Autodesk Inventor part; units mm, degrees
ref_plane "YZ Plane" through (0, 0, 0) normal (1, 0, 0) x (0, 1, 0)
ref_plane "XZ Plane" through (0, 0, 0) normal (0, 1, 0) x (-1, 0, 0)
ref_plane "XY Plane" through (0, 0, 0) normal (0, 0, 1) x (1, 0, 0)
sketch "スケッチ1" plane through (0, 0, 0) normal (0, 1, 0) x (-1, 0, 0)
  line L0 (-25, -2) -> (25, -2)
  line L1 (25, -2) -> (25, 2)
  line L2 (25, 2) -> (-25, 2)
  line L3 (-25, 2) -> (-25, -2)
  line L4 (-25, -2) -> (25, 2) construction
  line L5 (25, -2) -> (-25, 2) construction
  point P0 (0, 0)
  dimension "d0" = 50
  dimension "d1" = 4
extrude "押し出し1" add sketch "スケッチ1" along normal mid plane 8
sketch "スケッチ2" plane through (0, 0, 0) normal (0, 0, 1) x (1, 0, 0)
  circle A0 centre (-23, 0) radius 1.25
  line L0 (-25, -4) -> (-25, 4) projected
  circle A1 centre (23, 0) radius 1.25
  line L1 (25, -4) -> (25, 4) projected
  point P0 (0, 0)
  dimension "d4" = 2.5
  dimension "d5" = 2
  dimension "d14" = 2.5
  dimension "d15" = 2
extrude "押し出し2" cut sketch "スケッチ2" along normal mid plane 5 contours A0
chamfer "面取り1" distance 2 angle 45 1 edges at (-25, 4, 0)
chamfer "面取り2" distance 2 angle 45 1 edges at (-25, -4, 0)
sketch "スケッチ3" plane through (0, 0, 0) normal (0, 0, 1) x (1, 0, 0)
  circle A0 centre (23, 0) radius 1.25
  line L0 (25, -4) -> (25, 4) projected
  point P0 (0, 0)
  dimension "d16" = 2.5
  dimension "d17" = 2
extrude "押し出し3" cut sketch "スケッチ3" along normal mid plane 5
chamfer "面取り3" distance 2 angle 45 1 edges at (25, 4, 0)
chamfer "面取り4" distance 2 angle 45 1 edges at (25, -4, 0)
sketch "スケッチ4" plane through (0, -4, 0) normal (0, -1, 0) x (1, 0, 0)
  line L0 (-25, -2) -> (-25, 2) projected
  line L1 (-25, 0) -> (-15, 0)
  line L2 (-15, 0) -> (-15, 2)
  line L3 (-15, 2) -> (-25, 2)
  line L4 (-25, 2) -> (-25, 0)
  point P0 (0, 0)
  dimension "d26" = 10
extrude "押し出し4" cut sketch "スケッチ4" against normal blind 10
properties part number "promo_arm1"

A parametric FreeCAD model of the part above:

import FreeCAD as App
import Part
import Sketcher
Q = App.Units.Quantity


def edges_at(feature, points):
    """Names of the edges that pass closest to the given points."""
    edges = feature.Shape.Edges
    near = lambda p: min(range(len(edges)), key=lambda i: edges[i].distToShape(Part.Vertex(*p))[0])
    return sorted({f"Edge{near(p) + 1}" for p in points})


def add_polygon(sketch, points):
    """Adds a closed chain of lines whose ends are joined by coincident constraints."""
    first, n = sketch.GeometryCount, len(points)
    for a, b in zip(points, points[1:] + points[:1]):
        sketch.addGeometry(Part.LineSegment(App.Vector(*a, 0), App.Vector(*b, 0)), False)
    for i in range(n):
        sketch.addConstraint(Sketcher.Constraint("Coincident", first + i, 2, first + (i + 1) % n, 1))

doc = App.newDocument("Part")
body = doc.addObject("PartDesign::Body", "Body")

# Sketch on XZ plane
sketch1 = doc.addObject("Sketcher::SketchObject", "Sketch")
body.addObject(sketch1)
sketch1.AttachmentSupport = (doc.XZ_Plane, [""])
sketch1.MapMode = "FlatFace"
add_polygon(sketch1, [(25, 2), (25, -2), (-25, -2), (-25, 2)])  # lines 0-3
sketch1.addConstraint([
    Sketcher.Constraint("Vertical", 0),
    Sketcher.Constraint("Horizontal", 1),
    Sketcher.Constraint("Vertical", 2),
    Sketcher.Constraint("Horizontal", 3),
    Sketcher.Constraint("Symmetric", 0, 2, 2, 2, -1, 1),
    Sketcher.Constraint("DistanceX", 1, 2, 1, 1, Q("50 mm")),
    Sketcher.Constraint("DistanceY", 0, 2, 0, 1, Q("4 mm")),
])
pad1 = doc.addObject("PartDesign::Pad", "Pad")
body.addObject(pad1)
pad1.Profile = sketch1
pad1.Length = 8
pad1.Midplane = True

# Sketch on XY plane
sketch2 = doc.addObject("Sketcher::SketchObject", "Sketch001")
body.addObject(sketch2)
sketch2.AttachmentSupport = (doc.XY_Plane, [""])
sketch2.MapMode = "FlatFace"
sketch2.addGeometry(Part.Circle(App.Vector(-23, 0, 0), App.Vector(0, 0, 1), 1.2), False)
sketch2.addConstraint([
    Sketcher.Constraint("PointOnObject", 0, 3, -1),
    Sketcher.Constraint("Diameter", 0, Q("2.5 mm")),
    Sketcher.Constraint("DistanceX", 0, 3, -1, 1, Q("23 mm")),
])
pocket1 = doc.addObject("PartDesign::Pocket", "Pocket")
body.addObject(pocket1)
pocket1.Profile = sketch2
pocket1.Length = 5
pocket1.Midplane = True
doc.recompute()

chamfer = doc.addObject("PartDesign::Chamfer", "Chamfer")
body.addObject(chamfer)
chamfer.Base = (pocket1, edges_at(pocket1, [(-25, 4, 0)]))
chamfer.Size = 2
doc.recompute()

chamfer2 = doc.addObject("PartDesign::Chamfer", "Chamfer001")
body.addObject(chamfer2)
chamfer2.Base = (chamfer, edges_at(chamfer, [(-25, -4, 0)]))
chamfer2.Size = 2

# Sketch on XY plane
sketch3 = doc.addObject("Sketcher::SketchObject", "Sketch002")
body.addObject(sketch3)
sketch3.AttachmentSupport = (doc.XY_Plane, [""])
sketch3.MapMode = "FlatFace"
sketch3.addGeometry(Part.Circle(App.Vector(23, 0, 0), App.Vector(0, 0, 1), 1.2), False)
sketch3.addConstraint([
    Sketcher.Constraint("PointOnObject", 0, 3, -1),
    Sketcher.Constraint("Diameter", 0, Q("2.5 mm")),
    Sketcher.Constraint("DistanceX", -1, 1, 0, 3, Q("23 mm")),
])
pocket2 = doc.addObject("PartDesign::Pocket", "Pocket001")
body.addObject(pocket2)
pocket2.Profile = sketch3
pocket2.Length = 5
pocket2.Midplane = True
doc.recompute()

chamfer3 = doc.addObject("PartDesign::Chamfer", "Chamfer002")
body.addObject(chamfer3)
chamfer3.Base = (pocket2, edges_at(pocket2, [(25, 4, 0)]))
chamfer3.Size = 2
doc.recompute()

chamfer4 = doc.addObject("PartDesign::Chamfer", "Chamfer003")
body.addObject(chamfer4)
chamfer4.Base = (chamfer3, edges_at(chamfer3, [(25, -4, 0)]))
chamfer4.Size = 2

# Sketch on XZ plane
sketch4 = doc.addObject("Sketcher::SketchObject", "Sketch003")
body.addObject(sketch4)
sketch4.AttachmentSupport = (doc.XZ_Plane, [""])
sketch4.MapMode = "FlatFace"
sketch4.AttachmentOffset = App.Placement(App.Vector(0, 0, 4), App.Rotation())
add_polygon(sketch4, [(-25, 2), (-25, 0), (-15, 0), (-15, 2)])  # lines 0-3
sketch4.addConstraint([
    Sketcher.Constraint("Vertical", 0),
    Sketcher.Constraint("Horizontal", 1),
    Sketcher.Constraint("Vertical", 2),
    Sketcher.Constraint("Horizontal", 3),
    Sketcher.Constraint("PointOnObject", 0, 2, -1),
    Sketcher.Constraint("DistanceX", 1, 1, 1, 2, Q("10 mm")),
    Sketcher.Constraint("DistanceY", 0, 2, 0, 1, Q("2 mm")),
    Sketcher.Constraint("DistanceX", 0, 2, -1, 1, Q("25 mm")),
])
pocket3 = doc.addObject("PartDesign::Pocket", "Pocket002")
body.addObject(pocket3)
pocket3.Profile = sketch4
pocket3.Length = 10

doc.recompute()
